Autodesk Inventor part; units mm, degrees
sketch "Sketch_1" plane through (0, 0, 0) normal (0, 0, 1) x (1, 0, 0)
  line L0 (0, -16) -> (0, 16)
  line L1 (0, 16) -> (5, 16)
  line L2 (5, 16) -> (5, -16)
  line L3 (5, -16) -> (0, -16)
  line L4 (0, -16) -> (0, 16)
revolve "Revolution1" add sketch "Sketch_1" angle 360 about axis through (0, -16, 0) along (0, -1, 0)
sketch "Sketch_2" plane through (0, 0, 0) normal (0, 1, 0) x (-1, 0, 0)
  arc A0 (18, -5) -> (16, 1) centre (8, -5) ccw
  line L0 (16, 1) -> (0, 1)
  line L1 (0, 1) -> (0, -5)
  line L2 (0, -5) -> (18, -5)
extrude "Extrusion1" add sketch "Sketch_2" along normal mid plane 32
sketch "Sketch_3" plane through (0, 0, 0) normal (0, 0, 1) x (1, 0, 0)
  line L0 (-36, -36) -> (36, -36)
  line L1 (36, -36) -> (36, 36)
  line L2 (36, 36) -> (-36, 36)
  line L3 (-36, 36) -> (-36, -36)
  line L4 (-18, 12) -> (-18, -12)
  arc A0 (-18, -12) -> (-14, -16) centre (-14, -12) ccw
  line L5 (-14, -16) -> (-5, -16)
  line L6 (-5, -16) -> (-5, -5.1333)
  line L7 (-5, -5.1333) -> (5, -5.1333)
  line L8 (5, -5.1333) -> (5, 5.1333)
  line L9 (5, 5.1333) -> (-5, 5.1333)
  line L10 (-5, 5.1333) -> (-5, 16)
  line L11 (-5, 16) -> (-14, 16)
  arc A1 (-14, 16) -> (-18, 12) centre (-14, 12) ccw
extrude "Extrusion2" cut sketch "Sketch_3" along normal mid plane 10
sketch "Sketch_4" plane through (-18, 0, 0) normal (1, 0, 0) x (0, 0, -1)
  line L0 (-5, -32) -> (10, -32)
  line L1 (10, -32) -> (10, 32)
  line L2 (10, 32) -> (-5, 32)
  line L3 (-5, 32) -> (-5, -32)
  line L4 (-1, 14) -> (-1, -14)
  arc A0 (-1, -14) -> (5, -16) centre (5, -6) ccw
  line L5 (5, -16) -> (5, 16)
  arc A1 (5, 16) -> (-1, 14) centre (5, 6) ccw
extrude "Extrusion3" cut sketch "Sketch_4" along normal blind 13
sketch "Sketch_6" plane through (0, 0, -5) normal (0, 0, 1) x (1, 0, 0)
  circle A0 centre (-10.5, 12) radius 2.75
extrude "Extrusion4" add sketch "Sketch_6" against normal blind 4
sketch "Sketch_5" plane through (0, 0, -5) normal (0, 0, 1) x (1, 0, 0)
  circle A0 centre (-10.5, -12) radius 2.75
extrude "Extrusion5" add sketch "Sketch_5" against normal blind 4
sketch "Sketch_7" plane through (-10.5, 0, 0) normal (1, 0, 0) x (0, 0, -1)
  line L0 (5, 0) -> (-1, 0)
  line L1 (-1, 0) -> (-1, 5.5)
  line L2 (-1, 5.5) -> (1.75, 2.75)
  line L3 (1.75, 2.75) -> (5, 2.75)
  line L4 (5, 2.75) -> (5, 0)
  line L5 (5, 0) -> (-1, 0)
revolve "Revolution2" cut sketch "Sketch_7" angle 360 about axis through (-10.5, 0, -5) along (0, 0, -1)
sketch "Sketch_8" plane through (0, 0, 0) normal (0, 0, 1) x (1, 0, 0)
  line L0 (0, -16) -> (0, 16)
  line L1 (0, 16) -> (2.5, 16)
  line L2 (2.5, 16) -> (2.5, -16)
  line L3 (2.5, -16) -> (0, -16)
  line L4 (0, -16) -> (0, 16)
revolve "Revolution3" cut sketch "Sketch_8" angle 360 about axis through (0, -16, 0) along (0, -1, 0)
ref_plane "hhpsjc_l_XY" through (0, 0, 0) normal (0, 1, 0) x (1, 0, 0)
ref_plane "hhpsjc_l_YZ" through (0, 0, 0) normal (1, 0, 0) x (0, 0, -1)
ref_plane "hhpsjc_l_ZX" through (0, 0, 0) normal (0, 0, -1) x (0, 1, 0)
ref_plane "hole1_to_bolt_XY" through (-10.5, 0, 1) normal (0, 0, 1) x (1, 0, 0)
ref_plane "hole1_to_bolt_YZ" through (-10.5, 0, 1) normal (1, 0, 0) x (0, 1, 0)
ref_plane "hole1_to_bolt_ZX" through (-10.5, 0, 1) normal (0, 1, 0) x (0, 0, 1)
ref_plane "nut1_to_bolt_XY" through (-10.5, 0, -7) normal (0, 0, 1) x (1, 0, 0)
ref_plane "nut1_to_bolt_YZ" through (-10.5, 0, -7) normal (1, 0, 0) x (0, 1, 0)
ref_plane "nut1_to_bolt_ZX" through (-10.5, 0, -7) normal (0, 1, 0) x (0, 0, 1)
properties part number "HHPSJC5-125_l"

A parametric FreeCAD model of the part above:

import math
import FreeCAD as App
import Part
import Sketcher

V = App.Vector
Q = App.Units.Quantity

doc = App.newDocument("Part")
params = doc.addObject("Spreadsheet::Sheet", "Params")
for row, (alias, value) in enumerate([
    ("sketch1_width", "5 mm"),
    ("sketch1_height", "32 mm"),
    ("revolution_angle", "360 deg"),
    ("sketch2_radius", "10 mm"),
    ("sketch2_width", "18 mm"),
    ("sketch2_width2", "16 mm"),
    ("pad1_length", "32 mm"),
    ("sketch3_radius", "4 mm"),
    ("sketch3_width", "72 mm"),
    ("sketch3_width2", "9 mm"),
    ("sketch3_width3", "10 mm"),
    ("sketch3_height", "24 mm"),
    ("pocket1_length", "10 mm"),
    ("sketch4_radius", "10 mm"),
    ("sketch4_width", "64 mm"),
    ("sketch4_width2", "28 mm"),
    ("sketch4_width3", "32 mm"),
    ("sketch4_height", "15 mm"),
    ("pocket2_length", "13 mm"),
    ("sketch5_diameter", "5.5 mm"),
    ("pad2_length", "4 mm"),
    ("sketch6_diameter", "5.5 mm"),
    ("pad3_length", "4 mm"),
    ("sketch7_height", "6 mm"),
    ("sketch7_width", "5.5 mm"),
    ("sketch7_width2", "2.75 mm"),
    ("groove_angle", "360 deg"),
    ("sketch8_height", "32 mm"),
    ("sketch8_width", "2.5 mm"),
    ("groove2_angle", "360 deg"),
], start=1):
    params.set(f"A{row}", alias)
    params.set(f"B{row}", "=" + value)
    params.setAlias(f"B{row}", alias)

body = doc.addObject("PartDesign::Body", "Body")

# Sketch on XY plane
sketch1 = doc.addObject("Sketcher::SketchObject", "Sketch")
body.addObject(sketch1)
sketch1.AttachmentSupport = (doc.XY_Plane, [""])
sketch1.MapMode = "FlatFace"
sketch1.addGeometry(Part.LineSegment(V(0, 16, 0), V(0, -16, 0)), False)
sketch1.addGeometry(Part.LineSegment(V(0, -16, 0), V(5, -16, 0)), False)
sketch1.addGeometry(Part.LineSegment(V(5, -16, 0), V(5, 16, 0)), False)
sketch1.addGeometry(Part.LineSegment(V(5, 16, 0), V(0, 16, 0)), False)
sketch1.addConstraint(Sketcher.Constraint("Coincident", 0, 2, 1, 1))
sketch1.addConstraint(Sketcher.Constraint("Coincident", 1, 2, 2, 1))
sketch1.addConstraint(Sketcher.Constraint("Coincident", 2, 2, 3, 1))
sketch1.addConstraint(Sketcher.Constraint("Coincident", 3, 2, 0, 1))
sketch1.addConstraint(Sketcher.Constraint("Vertical", 0))
sketch1.addConstraint(Sketcher.Constraint("Horizontal", 1))
sketch1.addConstraint(Sketcher.Constraint("Vertical", 2))
sketch1.addConstraint(Sketcher.Constraint("Horizontal", 3))
sketch1.addConstraint(Sketcher.Constraint("Symmetric", 0, 2, 3, 2, -1, 1))
sketch1.addConstraint(Sketcher.Constraint("DistanceX", 1, 1, 1, 2, Q("5 mm")))
sketch1.addConstraint(Sketcher.Constraint("DistanceY", 0, 2, 0, 1, Q("32 mm")))
sketch1.setExpression("Constraints[9]", "Params.sketch1_width")
sketch1.setExpression("Constraints[10]", "Params.sketch1_height")
revolution = doc.addObject("PartDesign::Revolution", "Revolution")
body.addObject(revolution)
revolution.Profile = sketch1
revolution.ReferenceAxis = (sketch1, ["V_Axis"])
revolution.setExpression("Angle", "Params.revolution_angle")

# Sketch on XZ plane
sketch2 = doc.addObject("Sketcher::SketchObject", "Sketch001")
body.addObject(sketch2)
sketch2.AttachmentSupport = (doc.XZ_Plane, [""])
sketch2.MapMode = "FlatFace"
sketch2.addGeometry(Part.LineSegment(V(0, -5, 0), V(-18, -5, 0)), False)
sketch2.addGeometry(Part.ArcOfCircle(Part.Circle(V(-8, -5, 0), V(0, 0, 1), 10), math.radians(143.130102), math.radians(180)), False)
sketch2.addGeometry(Part.LineSegment(V(-16, 1, 0), V(0, 1, 0)), False)
sketch2.addGeometry(Part.LineSegment(V(0, 1, 0), V(0, -5, 0)), False)
sketch2.addConstraint(Sketcher.Constraint("Coincident", 0, 2, 1, 2))
sketch2.addConstraint(Sketcher.Constraint("Coincident", 1, 1, 2, 1))
sketch2.addConstraint(Sketcher.Constraint("Coincident", 2, 2, 3, 1))
sketch2.addConstraint(Sketcher.Constraint("Coincident", 3, 2, 0, 1))
sketch2.addConstraint(Sketcher.Constraint("Horizontal", 0))
sketch2.addConstraint(Sketcher.Constraint("Horizontal", 2))
sketch2.addConstraint(Sketcher.Constraint("Vertical", 3))
sketch2.addConstraint(Sketcher.Constraint("PointOnObject", 2, 2, -2))
sketch2.addConstraint(Sketcher.Constraint("Horizontal", 1, 3, 0, 2))
sketch2.addConstraint(Sketcher.Constraint("Radius", 1, Q("10 mm")))
sketch2.addConstraint(Sketcher.Constraint("DistanceX", 0, 2, 0, 1, Q("18 mm")))
sketch2.addConstraint(Sketcher.Constraint("DistanceX", 2, 1, 2, 2, Q("16 mm")))
sketch2.addConstraint(Sketcher.Constraint("DistanceY", 1, 3, -1, 1, Q("5 mm")))
sketch2.setExpression("Constraints[9]", "Params.sketch2_radius")
sketch2.setExpression("Constraints[10]", "Params.sketch2_width")
sketch2.setExpression("Constraints[11]", "Params.sketch2_width2")
pad1 = doc.addObject("PartDesign::Pad", "Pad")
body.addObject(pad1)
pad1.Profile = sketch2
pad1.setExpression("Length", "Params.pad1_length")
pad1.Midplane = True

# Sketch on XY plane
sketch3 = doc.addObject("Sketcher::SketchObject", "Sketch002")
body.addObject(sketch3)
sketch3.AttachmentSupport = (doc.XY_Plane, [""])
sketch3.MapMode = "FlatFace"
sketch3.addGeometry(Part.LineSegment(V(-36, 36, 0), V(-36, -36, 0)), False)
sketch3.addGeometry(Part.LineSegment(V(-36, -36, 0), V(36, -36, 0)), False)
sketch3.addGeometry(Part.LineSegment(V(36, -36, 0), V(36, 36, 0)), False)
sketch3.addGeometry(Part.LineSegment(V(36, 36, 0), V(-36, 36, 0)), False)
sketch3.addGeometry(Part.LineSegment(V(-18, -12, 0), V(-18, 12, 0)), False)
sketch3.addGeometry(Part.ArcOfCircle(Part.Circle(V(-14, 12, 0), V(0, 0, 1), 4), math.radians(90), math.radians(180)), False)
sketch3.addGeometry(Part.LineSegment(V(-14, 16, 0), V(-5, 16, 0)), False)
sketch3.addGeometry(Part.LineSegment(V(-5, 16, 0), V(-5, 5.1333, 0)), False)
sketch3.addGeometry(Part.LineSegment(V(-5, 5.1333, 0), V(5, 5.1333, 0)), False)
sketch3.addGeometry(Part.LineSegment(V(5, 5.1333, 0), V(5, -5.1333, 0)), False)
sketch3.addGeometry(Part.LineSegment(V(5, -5.1333, 0), V(-5, -5.1333, 0)), False)
sketch3.addGeometry(Part.LineSegment(V(-5, -5.1333, 0), V(-5, -16, 0)), False)
sketch3.addGeometry(Part.LineSegment(V(-5, -16, 0), V(-14, -16, 0)), False)
sketch3.addGeometry(Part.ArcOfCircle(Part.Circle(V(-14, -12, 0), V(0, 0, 1), 4), math.radians(180), math.radians(270)), False)
sketch3.addConstraint(Sketcher.Constraint("Coincident", 0, 2, 1, 1))
sketch3.addConstraint(Sketcher.Constraint("Coincident", 1, 2, 2, 1))
sketch3.addConstraint(Sketcher.Constraint("Coincident", 2, 2, 3, 1))
sketch3.addConstraint(Sketcher.Constraint("Coincident", 3, 2, 0, 1))
sketch3.addConstraint(Sketcher.Constraint("Tangent", 4, 2, 5, 2))
sketch3.addConstraint(Sketcher.Constraint("Tangent", 5, 1, 6, 1))
sketch3.addConstraint(Sketcher.Constraint("Coincident", 6, 2, 7, 1))
sketch3.addConstraint(Sketcher.Constraint("Coincident", 7, 2, 8, 1))
sketch3.addConstraint(Sketcher.Constraint("Coincident", 8, 2, 9, 1))
sketch3.addConstraint(Sketcher.Constraint("Coincident", 9, 2, 10, 1))
sketch3.addConstraint(Sketcher.Constraint("Coincident", 10, 2, 11, 1))
sketch3.addConstraint(Sketcher.Constraint("Coincident", 11, 2, 12, 1))
sketch3.addConstraint(Sketcher.Constraint("Tangent", 12, 2, 13, 2))
sketch3.addConstraint(Sketcher.Constraint("Tangent", 13, 1, 4, 1))
sketch3.addConstraint(Sketcher.Constraint("Vertical", 0))
sketch3.addConstraint(Sketcher.Constraint("Horizontal", 1))
sketch3.addConstraint(Sketcher.Constraint("Vertical", 2))
sketch3.addConstraint(Sketcher.Constraint("Horizontal", 3))
sketch3.addConstraint(Sketcher.Constraint("Vertical", 4))
sketch3.addConstraint(Sketcher.Constraint("Horizontal", 6))
sketch3.addConstraint(Sketcher.Constraint("Vertical", 7))
sketch3.addConstraint(Sketcher.Constraint("Horizontal", 8))
sketch3.addConstraint(Sketcher.Constraint("Vertical", 9))
sketch3.addConstraint(Sketcher.Constraint("Horizontal", 10))
sketch3.addConstraint(Sketcher.Constraint("Vertical", 11))
sketch3.addConstraint(Sketcher.Constraint("Horizontal", 12))
sketch3.addConstraint(Sketcher.Constraint("Equal", 5, 13))
sketch3.addConstraint(Sketcher.Constraint("Symmetric", 0, 2, 2, 2, -1, 1))
sketch3.addConstraint(Sketcher.Constraint("Symmetric", 7, 2, 9, 2, -1, 1))
sketch3.addConstraint(Sketcher.Constraint("Symmetric", 6, 2, 11, 2, -1))
sketch3.addConstraint(Sketcher.Constraint("Equal", 3, 0))
sketch3.addConstraint(Sketcher.Constraint("Radius", 5, Q("4 mm")))
sketch3.addConstraint(Sketcher.Constraint("DistanceX", 1, 1, 1, 2, Q("72 mm")))
sketch3.addConstraint(Sketcher.Constraint("DistanceX", 6, 1, 6, 2, Q("9 mm")))
sketch3.addConstraint(Sketcher.Constraint("DistanceX", 8, 1, 8, 2, Q("10 mm")))
sketch3.addConstraint(Sketcher.Constraint("DistanceY", 4, 1, 4, 2, Q("24 mm")))
sketch3.addConstraint(Sketcher.Constraint("DistanceY", 7, 2, 7, 1, Q("10.8667 mm")))
sketch3.setExpression("Constraints[31]", "Params.sketch3_radius")
sketch3.setExpression("Constraints[32]", "Params.sketch3_width")
sketch3.setExpression("Constraints[33]", "Params.sketch3_width2")
sketch3.setExpression("Constraints[34]", "Params.sketch3_width3")
sketch3.setExpression("Constraints[35]", "Params.sketch3_height")
pocket1 = doc.addObject("PartDesign::Pocket", "Pocket")
body.addObject(pocket1)
pocket1.Profile = sketch3
pocket1.setExpression("Length", "Params.pocket1_length")
pocket1.Midplane = True

# Sketch on YZ plane
sketch4 = doc.addObject("Sketcher::SketchObject", "Sketch003")
body.addObject(sketch4)
sketch4.AttachmentSupport = (doc.YZ_Plane, [""])
sketch4.MapMode = "FlatFace"
sketch4.AttachmentOffset = App.Placement(V(0, 0, -18), App.Rotation())
sketch4.addGeometry(Part.LineSegment(V(32, 5, 0), V(-32, 5, 0)), False)
sketch4.addGeometry(Part.LineSegment(V(-32, 5, 0), V(-32, -10, 0)), False)
sketch4.addGeometry(Part.LineSegment(V(-32, -10, 0), V(32, -10, 0)), False)
sketch4.addGeometry(Part.LineSegment(V(32, -10, 0), V(32, 5, 0)), False)
sketch4.addGeometry(Part.LineSegment(V(-14, 1, 0), V(14, 1, 0)), False)
sketch4.addGeometry(Part.ArcOfCircle(Part.Circle(V(6, -5, 0), V(0, 0, 1), 10), math.radians(0), math.radians(36.869898)), False)
sketch4.addGeometry(Part.LineSegment(V(16, -5, 0), V(-16, -5, 0)), False)
sketch4.addGeometry(Part.ArcOfCircle(Part.Circle(V(-6, -5, 0), V(0, 0, 1), 10), math.radians(143.130102), math.radians(180)), False)
sketch4.addConstraint(Sketcher.Constraint("Coincident", 0, 2, 1, 1))
sketch4.addConstraint(Sketcher.Constraint("Coincident", 1, 2, 2, 1))
sketch4.addConstraint(Sketcher.Constraint("Coincident", 2, 2, 3, 1))
sketch4.addConstraint(Sketcher.Constraint("Coincident", 3, 2, 0, 1))
sketch4.addConstraint(Sketcher.Constraint("Coincident", 4, 2, 5, 2))
sketch4.addConstraint(Sketcher.Constraint("Coincident", 5, 1, 6, 1))
sketch4.addConstraint(Sketcher.Constraint("Coincident", 6, 2, 7, 2))
sketch4.addConstraint(Sketcher.Constraint("Coincident", 7, 1, 4, 1))
sketch4.addConstraint(Sketcher.Constraint("Horizontal", 0))
sketch4.addConstraint(Sketcher.Constraint("Vertical", 1))
sketch4.addConstraint(Sketcher.Constraint("Horizontal", 2))
sketch4.addConstraint(Sketcher.Constraint("Vertical", 3))
sketch4.addConstraint(Sketcher.Constraint("Horizontal", 4))
sketch4.addConstraint(Sketcher.Constraint("Horizontal", 6))
sketch4.addConstraint(Sketcher.Constraint("Equal", 5, 7))
sketch4.addConstraint(Sketcher.Constraint("Symmetric", 5, 3, 7, 3, -2))
sketch4.addConstraint(Sketcher.Constraint("Horizontal", 7, 3, 5, 1))
sketch4.addConstraint(Sketcher.Constraint("Radius", 5, Q("10 mm")))
sketch4.addConstraint(Sketcher.Constraint("DistanceX", 0, 2, 0, 1, Q("64 mm")))
sketch4.addConstraint(Sketcher.Constraint("DistanceX", 4, 1, 4, 2, Q("28 mm")))
sketch4.addConstraint(Sketcher.Constraint("DistanceX", 6, 2, 6, 1, Q("32 mm")))
sketch4.addConstraint(Sketcher.Constraint("DistanceY", 1, 2, 1, 1, Q("15 mm")))
sketch4.addConstraint(Sketcher.Constraint("DistanceY", 5, 3, -1, 1, Q("5 mm")))
sketch4.addConstraint(Sketcher.Constraint("DistanceX", 0, 2, -1, 1, Q("32 mm")))
sketch4.addConstraint(Sketcher.Constraint("DistanceY", -1, 1, 0, 2, Q("5 mm")))
sketch4.setExpression("Constraints[17]", "Params.sketch4_radius")
sketch4.setExpression("Constraints[18]", "Params.sketch4_width")
sketch4.setExpression("Constraints[19]", "Params.sketch4_width2")
sketch4.setExpression("Constraints[20]", "Params.sketch4_width3")
sketch4.setExpression("Constraints[21]", "Params.sketch4_height")
pocket2 = doc.addObject("PartDesign::Pocket", "Pocket001")
body.addObject(pocket2)
pocket2.Profile = sketch4
pocket2.setExpression("Length", "Params.pocket2_length")
pocket2.Reversed = True

# Sketch on XY plane
sketch5 = doc.addObject("Sketcher::SketchObject", "Sketch004")
body.addObject(sketch5)
sketch5.AttachmentSupport = (doc.XY_Plane, [""])
sketch5.MapMode = "FlatFace"
sketch5.AttachmentOffset = App.Placement(V(0, 0, -5), App.Rotation())
sketch5.addGeometry(Part.Circle(V(-10.5, 12, 0), V(0, 0, 1), 2.75), False)
sketch5.addConstraint(Sketcher.Constraint("Diameter", 0, Q("5.5 mm")))
sketch5.addConstraint(Sketcher.Constraint("DistanceY", -1, 1, 0, 3, Q("12 mm")))
sketch5.addConstraint(Sketcher.Constraint("DistanceX", 0, 3, -1, 1, Q("10.5 mm")))
sketch5.setExpression("Constraints[0]", "Params.sketch5_diameter")
pad2 = doc.addObject("PartDesign::Pad", "Pad001")
body.addObject(pad2)
pad2.Profile = sketch5
pad2.setExpression("Length", "Params.pad2_length")
pad2.Reversed = True

# Sketch on XY plane
sketch6 = doc.addObject("Sketcher::SketchObject", "Sketch005")
body.addObject(sketch6)
sketch6.AttachmentSupport = (doc.XY_Plane, [""])
sketch6.MapMode = "FlatFace"
sketch6.AttachmentOffset = App.Placement(V(0, 0, -5), App.Rotation())
sketch6.addGeometry(Part.Circle(V(-10.5, -12, 0), V(0, 0, 1), 2.75), False)
sketch6.addConstraint(Sketcher.Constraint("Diameter", 0, Q("5.5 mm")))
sketch6.addConstraint(Sketcher.Constraint("DistanceY", 0, 3, -1, 1, Q("12 mm")))
sketch6.addConstraint(Sketcher.Constraint("DistanceX", 0, 3, -1, 1, Q("10.5 mm")))
sketch6.setExpression("Constraints[0]", "Params.sketch6_diameter")
pad3 = doc.addObject("PartDesign::Pad", "Pad002")
body.addObject(pad3)
pad3.Profile = sketch6
pad3.setExpression("Length", "Params.pad3_length")
pad3.Reversed = True

# Sketch on YZ plane
sketch7 = doc.addObject("Sketcher::SketchObject", "Sketch006")
body.addObject(sketch7)
sketch7.AttachmentSupport = (doc.YZ_Plane, [""])
sketch7.MapMode = "FlatFace"
sketch7.AttachmentOffset = App.Placement(V(0, 0, -10.5), App.Rotation())
sketch7.addGeometry(Part.LineSegment(V(0, 1, 0), V(0, -5, 0)), False)
sketch7.addGeometry(Part.LineSegment(V(0, -5, 0), V(2.75, -5, 0)), False)
sketch7.addGeometry(Part.LineSegment(V(2.75, -5, 0), V(2.75, -1.75, 0)), False)
sketch7.addGeometry(Part.LineSegment(V(2.75, -1.75, 0), V(5.5, 1, 0)), False)
sketch7.addGeometry(Part.LineSegment(V(5.5, 1, 0), V(0, 1, 0)), False)
sketch7.addConstraint(Sketcher.Constraint("Coincident", 0, 2, 1, 1))
sketch7.addConstraint(Sketcher.Constraint("Coincident", 1, 2, 2, 1))
sketch7.addConstraint(Sketcher.Constraint("Coincident", 2, 2, 3, 1))
sketch7.addConstraint(Sketcher.Constraint("Coincident", 3, 2, 4, 1))
sketch7.addConstraint(Sketcher.Constraint("Coincident", 4, 2, 0, 1))
sketch7.addConstraint(Sketcher.Constraint("Vertical", 0))
sketch7.addConstraint(Sketcher.Constraint("Horizontal", 1))
sketch7.addConstraint(Sketcher.Constraint("Vertical", 2))
sketch7.addConstraint(Sketcher.Constraint("Horizontal", 4))
sketch7.addConstraint(Sketcher.Constraint("PointOnObject", 0, 2, -2))
sketch7.addConstraint(Sketcher.Constraint("DistanceY", 0, 2, 0, 1, Q("6 mm")))
sketch7.addConstraint(Sketcher.Constraint("Angle", 3, Q("45 deg")))
sketch7.addConstraint(Sketcher.Constraint("DistanceX", 4, 2, 4, 1, Q("5.5 mm")))
sketch7.addConstraint(Sketcher.Constraint("DistanceY", 0, 2, -1, 1, Q("5 mm")))
sketch7.addConstraint(Sketcher.Constraint("DistanceX", 1, 1, 1, 2, Q("2.75 mm")))
sketch7.setExpression("Constraints[10]", "Params.sketch7_height")
sketch7.setExpression("Constraints[12]", "Params.sketch7_width")
sketch7.setExpression("Constraints[14]", "Params.sketch7_width2")
groove = doc.addObject("PartDesign::Groove", "Groove")
body.addObject(groove)
groove.Profile = sketch7
groove.ReferenceAxis = (sketch7, ["V_Axis"])
groove.setExpression("Angle", "Params.groove_angle")

# Sketch on XY plane
sketch8 = doc.addObject("Sketcher::SketchObject", "Sketch007")
body.addObject(sketch8)
sketch8.AttachmentSupport = (doc.XY_Plane, [""])
sketch8.MapMode = "FlatFace"
sketch8.addGeometry(Part.LineSegment(V(0, 16, 0), V(0, -16, 0)), False)
sketch8.addGeometry(Part.LineSegment(V(0, -16, 0), V(2.5, -16, 0)), False)
sketch8.addGeometry(Part.LineSegment(V(2.5, -16, 0), V(2.5, 16, 0)), False)
sketch8.addGeometry(Part.LineSegment(V(2.5, 16, 0), V(0, 16, 0)), False)
sketch8.addConstraint(Sketcher.Constraint("Coincident", 0, 2, 1, 1))
sketch8.addConstraint(Sketcher.Constraint("Coincident", 1, 2, 2, 1))
sketch8.addConstraint(Sketcher.Constraint("Coincident", 2, 2, 3, 1))
sketch8.addConstraint(Sketcher.Constraint("Coincident", 3, 2, 0, 1))
sketch8.addConstraint(Sketcher.Constraint("Vertical", 0))
sketch8.addConstraint(Sketcher.Constraint("Horizontal", 1))
sketch8.addConstraint(Sketcher.Constraint("Vertical", 2))
sketch8.addConstraint(Sketcher.Constraint("Horizontal", 3))
sketch8.addConstraint(Sketcher.Constraint("Symmetric", 0, 2, 3, 2, -1, 1))
sketch8.addConstraint(Sketcher.Constraint("DistanceY", 0, 2, 0, 1, Q("32 mm")))
sketch8.addConstraint(Sketcher.Constraint("DistanceX", 1, 1, 1, 2, Q("2.5 mm")))
sketch8.setExpression("Constraints[9]", "Params.sketch8_height")
sketch8.setExpression("Constraints[10]", "Params.sketch8_width")
groove2 = doc.addObject("PartDesign::Groove", "Groove001")
body.addObject(groove2)
groove2.Profile = sketch8
groove2.ReferenceAxis = (sketch8, ["V_Axis"])
groove2.setExpression("Angle", "Params.groove2_angle")

doc.recompute()
